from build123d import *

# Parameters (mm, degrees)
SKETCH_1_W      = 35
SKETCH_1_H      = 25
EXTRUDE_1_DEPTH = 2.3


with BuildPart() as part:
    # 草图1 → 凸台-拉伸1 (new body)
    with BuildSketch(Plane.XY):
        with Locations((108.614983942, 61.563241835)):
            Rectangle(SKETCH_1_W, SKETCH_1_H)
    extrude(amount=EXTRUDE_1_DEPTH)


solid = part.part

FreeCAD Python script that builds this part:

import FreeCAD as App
import Part
import Sketcher
from FreeCAD import Vector

doc = App.newDocument("Part")
body = doc.addObject("PartDesign::Body", "Body")

# Sketch on XY plane
sketch1 = doc.addObject("Sketcher::SketchObject", "Sketch")
body.addObject(sketch1)
sketch1.AttachmentSupport = (doc.XY_Plane, [""])
sketch1.MapMode = "FlatFace"
sketch1.addGeometry(Part.LineSegment(Vector(91.114984, 74.063242, 0), Vector(91.114984, 49.063242, 0)), False)
sketch1.addGeometry(Part.LineSegment(Vector(91.114984, 49.063242, 0), Vector(126.114984, 49.063242, 0)), False)
sketch1.addGeometry(Part.LineSegment(Vector(126.114984, 49.063242, 0), Vector(126.114984, 74.063242, 0)), False)
sketch1.addGeometry(Part.LineSegment(Vector(126.114984, 74.063242, 0), Vector(91.114984, 74.063242, 0)), False)
sketch1.addConstraint(Sketcher.Constraint("Coincident", 0, 2, 1, 1))
sketch1.addConstraint(Sketcher.Constraint("Coincident", 1, 2, 2, 1))
sketch1.addConstraint(Sketcher.Constraint("Coincident", 2, 2, 3, 1))
sketch1.addConstraint(Sketcher.Constraint("Coincident", 3, 2, 0, 1))
sketch1.addConstraint(Sketcher.Constraint("Vertical", 0))
sketch1.addConstraint(Sketcher.Constraint("Horizontal", 1))
sketch1.addConstraint(Sketcher.Constraint("Vertical", 2))
sketch1.addConstraint(Sketcher.Constraint("Horizontal", 3))
sketch1.addConstraint(Sketcher.Constraint("DistanceX", 1, 1, 1, 2, 35.0))
sketch1.addConstraint(Sketcher.Constraint("DistanceY", 0, 2, 0, 1, 25.0))
sketch1.addConstraint(Sketcher.Constraint("DistanceY", -1, 1, 0, 2, 49.063242))
sketch1.addConstraint(Sketcher.Constraint("DistanceX", -1, 1, 0, 2, 91.114984))
pad1 = doc.addObject("PartDesign::Pad", "Pad")
body.addObject(pad1)
pad1.Profile = sketch1
pad1.Length = 2.3

doc.recompute()
